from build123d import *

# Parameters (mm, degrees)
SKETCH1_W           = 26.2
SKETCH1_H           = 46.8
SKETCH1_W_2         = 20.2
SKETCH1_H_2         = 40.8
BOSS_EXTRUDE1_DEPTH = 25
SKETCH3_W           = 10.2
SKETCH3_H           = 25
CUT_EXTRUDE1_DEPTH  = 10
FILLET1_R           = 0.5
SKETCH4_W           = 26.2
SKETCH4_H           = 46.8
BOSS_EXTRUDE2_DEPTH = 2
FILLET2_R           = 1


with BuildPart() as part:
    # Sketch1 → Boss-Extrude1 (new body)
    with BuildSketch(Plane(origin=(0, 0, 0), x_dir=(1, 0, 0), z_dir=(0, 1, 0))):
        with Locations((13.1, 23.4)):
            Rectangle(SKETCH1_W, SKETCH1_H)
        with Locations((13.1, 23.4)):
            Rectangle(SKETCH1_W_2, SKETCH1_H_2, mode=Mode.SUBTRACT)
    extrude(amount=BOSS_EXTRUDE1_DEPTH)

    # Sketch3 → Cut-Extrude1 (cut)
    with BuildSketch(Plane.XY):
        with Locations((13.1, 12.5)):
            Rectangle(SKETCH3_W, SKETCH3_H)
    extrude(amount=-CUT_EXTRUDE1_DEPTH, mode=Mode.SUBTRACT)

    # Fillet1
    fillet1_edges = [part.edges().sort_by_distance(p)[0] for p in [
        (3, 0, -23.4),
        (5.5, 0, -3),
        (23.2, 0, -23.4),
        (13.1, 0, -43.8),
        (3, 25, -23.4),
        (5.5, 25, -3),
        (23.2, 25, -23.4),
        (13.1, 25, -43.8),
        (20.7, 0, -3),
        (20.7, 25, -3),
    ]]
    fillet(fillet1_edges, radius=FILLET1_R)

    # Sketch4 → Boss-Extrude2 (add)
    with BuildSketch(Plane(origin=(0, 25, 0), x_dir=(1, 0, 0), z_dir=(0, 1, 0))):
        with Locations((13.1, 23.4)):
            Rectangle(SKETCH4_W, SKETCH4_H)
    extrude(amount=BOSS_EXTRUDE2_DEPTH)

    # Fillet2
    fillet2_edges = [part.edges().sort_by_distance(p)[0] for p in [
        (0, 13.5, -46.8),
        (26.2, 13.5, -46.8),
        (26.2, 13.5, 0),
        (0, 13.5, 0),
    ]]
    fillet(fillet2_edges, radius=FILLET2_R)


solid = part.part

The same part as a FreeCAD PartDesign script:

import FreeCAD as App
import Part
import Sketcher


def edges_at(feature, points):
    """Names of the edges that pass closest to the given points."""
    edges = feature.Shape.Edges
    near = lambda p: min(range(len(edges)), key=lambda i: edges[i].distToShape(Part.Vertex(*p))[0])
    return sorted({f"Edge{near(p) + 1}" for p in points})

doc = App.newDocument("Part")
body = doc.addObject("PartDesign::Body", "Body")

# Sketch on XZ plane
sketch1 = doc.addObject("Sketcher::SketchObject", "Sketch")
body.addObject(sketch1)
sketch1.AttachmentSupport = (doc.XZ_Plane, [""])
sketch1.MapMode = "FlatFace"
sketch1.addGeometry([
    Part.LineSegment(App.Vector(0, -47, 0), App.Vector(0, 0, 0)),  # 0
    Part.LineSegment(App.Vector(0, 0, 0), App.Vector(26, 0, 0)),  # 1
    Part.LineSegment(App.Vector(26, 0, 0), App.Vector(26, -47, 0)),  # 2
    Part.LineSegment(App.Vector(26, -47, 0), App.Vector(0, -47, 0)),  # 3
    Part.LineSegment(App.Vector(23, -3, 0), App.Vector(3, -3, 0)),  # 4
    Part.LineSegment(App.Vector(3, -3, 0), App.Vector(3, -44, 0)),  # 5
    Part.LineSegment(App.Vector(3, -44, 0), App.Vector(23, -44, 0)),  # 6
    Part.LineSegment(App.Vector(23, -44, 0), App.Vector(23, -3, 0)),  # 7
], False)
sketch1.addConstraint([
    Sketcher.Constraint("Coincident", 0, 2, 1, 1),
    Sketcher.Constraint("Coincident", 1, 2, 2, 1),
    Sketcher.Constraint("Coincident", 2, 2, 3, 1),
    Sketcher.Constraint("Coincident", 3, 2, 0, 1),
    Sketcher.Constraint("Coincident", 4, 2, 5, 1),
    Sketcher.Constraint("Coincident", 5, 2, 6, 1),
    Sketcher.Constraint("Coincident", 6, 2, 7, 1),
    Sketcher.Constraint("Coincident", 7, 2, 4, 1),
    Sketcher.Constraint("Vertical", 0),
    Sketcher.Constraint("Horizontal", 1),
    Sketcher.Constraint("Vertical", 2),
    Sketcher.Constraint("Horizontal", 3),
    Sketcher.Constraint("Horizontal", 4),
    Sketcher.Constraint("Vertical", 5),
    Sketcher.Constraint("Horizontal", 6),
    Sketcher.Constraint("Vertical", 7),
    Sketcher.Constraint("Coincident", 0, 2, -1, 1),
    Sketcher.Constraint("DistanceX", 1, 1, 1, 2, 26.2),
    Sketcher.Constraint("DistanceX", 4, 2, 4, 1, 20.2),
    Sketcher.Constraint("DistanceY", 0, 1, 0, 2, 46.8),
    Sketcher.Constraint("DistanceY", 5, 2, 5, 1, 40.8),
    Sketcher.Constraint("DistanceX", -1, 1, 4, 2, 3.0),
    Sketcher.Constraint("DistanceY", 4, 2, -1, 1, 3.0),
])
pad1 = doc.addObject("PartDesign::Pad", "Pad")
body.addObject(pad1)
pad1.Profile = sketch1
pad1.Length = 25
pad1.Reversed = True

# Sketch on XY plane
sketch2 = doc.addObject("Sketcher::SketchObject", "Sketch001")
body.addObject(sketch2)
sketch2.AttachmentSupport = (doc.XY_Plane, [""])
sketch2.MapMode = "FlatFace"
sketch2.addGeometry([
    Part.LineSegment(App.Vector(8, 25, 0), App.Vector(8, 0, 0)),
    Part.LineSegment(App.Vector(8, 0, 0), App.Vector(18, 0, 0)),
    Part.LineSegment(App.Vector(18, 0, 0), App.Vector(18, 25, 0)),
    Part.LineSegment(App.Vector(18, 25, 0), App.Vector(8, 25, 0)),
], False)
sketch2.addConstraint([
    Sketcher.Constraint("Coincident", 0, 2, 1, 1),
    Sketcher.Constraint("Coincident", 1, 2, 2, 1),
    Sketcher.Constraint("Coincident", 2, 2, 3, 1),
    Sketcher.Constraint("Coincident", 3, 2, 0, 1),
    Sketcher.Constraint("Vertical", 0),
    Sketcher.Constraint("Horizontal", 1),
    Sketcher.Constraint("Vertical", 2),
    Sketcher.Constraint("Horizontal", 3),
    Sketcher.Constraint("PointOnObject", 0, 2, -1),
    Sketcher.Constraint("DistanceY", 0, 2, 0, 1, 25.0),
    Sketcher.Constraint("DistanceX", 1, 1, 1, 2, 10.2),
    Sketcher.Constraint("DistanceX", -1, 1, 0, 2, 8.0),
])
pocket1 = doc.addObject("PartDesign::Pocket", "Pocket")
body.addObject(pocket1)
pocket1.Profile = sketch2
pocket1.Length = 10
doc.recompute()

fillet = doc.addObject("PartDesign::Fillet", "Fillet")
body.addObject(fillet)
fillet.Base = (pocket1, edges_at(pocket1, [
    (3, 0, -23.4),
    (5.5, 0, -3),
    (23.2, 0, -23.4),
    (13.1, 0, -43.8),
    (3, 25, -23.4),
    (5.5, 25, -3),
    (23.2, 25, -23.4),
    (13.1, 25, -43.8),
    (20.7, 0, -3),
    (20.7, 25, -3),
]))
fillet.Radius = 0.5

# Sketch on XZ plane
sketch3 = doc.addObject("Sketcher::SketchObject", "Sketch002")
body.addObject(sketch3)
sketch3.AttachmentSupport = (doc.XZ_Plane, [""])
sketch3.MapMode = "FlatFace"
sketch3.AttachmentOffset = App.Placement(App.Vector(0, 0, -25), App.Rotation())
sketch3.addGeometry([
    Part.LineSegment(App.Vector(0, -47, 0), App.Vector(0, 0, 0)),
    Part.LineSegment(App.Vector(0, 0, 0), App.Vector(26, 0, 0)),
    Part.LineSegment(App.Vector(26, 0, 0), App.Vector(26, -47, 0)),
    Part.LineSegment(App.Vector(26, -47, 0), App.Vector(0, -47, 0)),
], False)
sketch3.addConstraint([
    Sketcher.Constraint("Coincident", 0, 2, 1, 1),
    Sketcher.Constraint("Coincident", 1, 2, 2, 1),
    Sketcher.Constraint("Coincident", 2, 2, 3, 1),
    Sketcher.Constraint("Coincident", 3, 2, 0, 1),
    Sketcher.Constraint("Vertical", 0),
    Sketcher.Constraint("Horizontal", 1),
    Sketcher.Constraint("Vertical", 2),
    Sketcher.Constraint("Horizontal", 3),
    Sketcher.Constraint("Coincident", 0, 2, -1, 1),
    Sketcher.Constraint("DistanceX", 1, 1, 1, 2, 26.2),
    Sketcher.Constraint("DistanceY", 0, 1, 0, 2, 46.8),
])
pad2 = doc.addObject("PartDesign::Pad", "Pad001")
body.addObject(pad2)
pad2.Profile = sketch3
pad2.Length = 2
pad2.Reversed = True
doc.recompute()

fillet2 = doc.addObject("PartDesign::Fillet", "Fillet001")
body.addObject(fillet2)
fillet2.Base = (pad2, edges_at(pad2, [
    (0, 13.5, -46.8),
    (26.2, 13.5, -46.8),
    (26.2, 13.5, 0),
    (0, 13.5, 0),
]))
fillet2.Radius = 1

doc.recompute()
